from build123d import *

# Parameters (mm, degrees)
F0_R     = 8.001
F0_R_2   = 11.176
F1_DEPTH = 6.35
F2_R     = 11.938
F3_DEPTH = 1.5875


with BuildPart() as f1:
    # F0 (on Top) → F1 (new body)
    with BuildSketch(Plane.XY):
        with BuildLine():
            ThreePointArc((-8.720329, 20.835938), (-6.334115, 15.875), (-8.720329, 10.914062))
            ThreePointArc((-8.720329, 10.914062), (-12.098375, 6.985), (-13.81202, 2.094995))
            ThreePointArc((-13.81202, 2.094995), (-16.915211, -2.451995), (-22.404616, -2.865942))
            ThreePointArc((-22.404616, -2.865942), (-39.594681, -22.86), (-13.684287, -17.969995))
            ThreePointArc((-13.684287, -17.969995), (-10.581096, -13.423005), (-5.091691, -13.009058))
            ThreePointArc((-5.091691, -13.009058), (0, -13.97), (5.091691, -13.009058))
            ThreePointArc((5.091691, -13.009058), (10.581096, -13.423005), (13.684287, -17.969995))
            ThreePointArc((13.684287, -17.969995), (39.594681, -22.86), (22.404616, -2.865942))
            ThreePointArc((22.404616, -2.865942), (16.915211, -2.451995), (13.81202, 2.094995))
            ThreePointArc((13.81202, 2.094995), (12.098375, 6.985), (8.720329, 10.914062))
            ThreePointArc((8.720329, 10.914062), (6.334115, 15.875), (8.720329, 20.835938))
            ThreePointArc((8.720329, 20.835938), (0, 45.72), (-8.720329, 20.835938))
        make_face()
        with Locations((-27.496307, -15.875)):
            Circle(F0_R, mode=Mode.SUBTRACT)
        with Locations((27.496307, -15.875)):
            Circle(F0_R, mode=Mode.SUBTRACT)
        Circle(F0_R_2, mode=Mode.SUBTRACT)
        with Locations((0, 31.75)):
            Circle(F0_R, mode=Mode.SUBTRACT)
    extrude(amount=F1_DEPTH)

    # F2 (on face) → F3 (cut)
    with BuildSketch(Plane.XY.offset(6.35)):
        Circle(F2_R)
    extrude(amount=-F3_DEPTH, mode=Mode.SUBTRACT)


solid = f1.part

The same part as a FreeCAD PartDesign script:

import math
import FreeCAD as App
import Part
import Sketcher
Q = App.Units.Quantity

doc = App.newDocument("Part")
body = doc.addObject("PartDesign::Body", "Body")

# Sketch on XY plane
sketch1 = body.newObject("Sketcher::SketchObject", "Sketch")
sketch1.AttachmentSupport = (doc.getObject("XY_Plane"), [""])
sketch1.MapMode = "FlatFace"
sketch1.addGeometry([
    Part.ArcOfCircle(Part.Circle(App.Vector(-12.684116, 15.875, 0), App.Vector(0, 0, 1), 6.350001), math.radians(-51.375162), math.radians(51.375162)),  # 0
    Part.ArcOfCircle(Part.Circle(App.Vector(-0.000004, 0.000002, 0), App.Vector(0, 0, 1), 13.969996), math.radians(128.624824), math.radians(171.375173)),  # 1
    Part.ArcOfCircle(Part.Circle(App.Vector(-20.090211, 3.047267, 0), App.Vector(0, 0, 1), 6.350001), math.radians(-111.375163), math.radians(-8.624844)),  # 2
    Part.ArcOfCircle(Part.Circle(App.Vector(-27.496307, -15.875, 0), App.Vector(0, 0, 1), 13.97), math.radians(68.624833), math.radians(351.375166)),  # 3
    Part.ArcOfCircle(Part.Circle(App.Vector(-7.406096, -18.922267, 0), App.Vector(0, 0, 1), 6.350001), math.radians(68.624837), math.radians(171.375156)),  # 4
    Part.ArcOfCircle(Part.Circle(App.Vector(0, 0.000004, 0), App.Vector(0, 0, 1), 13.970004), math.radians(-111.375162), math.radians(-68.624838)),  # 5
    Part.ArcOfCircle(Part.Circle(App.Vector(7.406096, -18.922267, 0), App.Vector(0, 0, 1), 6.350001), math.radians(8.624844), math.radians(111.375163)),  # 6
    Part.ArcOfCircle(Part.Circle(App.Vector(27.496307, -15.875, 0), App.Vector(0, 0, 1), 13.97), math.radians(-171.375166), math.radians(111.375167)),  # 7
    Part.ArcOfCircle(Part.Circle(App.Vector(20.090211, 3.047267, 0), App.Vector(0, 0, 1), 6.350001), math.radians(-171.375156), math.radians(-68.624837)),  # 8
    Part.ArcOfCircle(Part.Circle(App.Vector(0.000004, 0.000002, 0), App.Vector(0, 0, 1), 13.969996), math.radians(8.624827), math.radians(51.375176)),  # 9
    Part.ArcOfCircle(Part.Circle(App.Vector(12.684116, 15.875, 0), App.Vector(0, 0, 1), 6.350001), math.radians(128.624838), math.radians(231.375162)),  # 10
    Part.ArcOfCircle(Part.Circle(App.Vector(0, 31.75, 0), App.Vector(0, 0, 1), 13.97), math.radians(-51.375167), math.radians(231.375167)),  # 11
    Part.Circle(App.Vector(-27.496307, -15.875, 0), App.Vector(0, 0, 1), 8.001),  # 12
    Part.Circle(App.Vector(0, 0, 0), App.Vector(0, 0, 1), 11.176),  # 13
    Part.Circle(App.Vector(27.496307, -15.875, 0), App.Vector(0, 0, 1), 8.001),  # 14
    Part.Circle(App.Vector(0, 31.75, 0), App.Vector(0, 0, 1), 8.001),  # 15
], False)
sketch1.addConstraint([
    Sketcher.Constraint("Tangent", 0, 1, 1, 1),
    Sketcher.Constraint("Tangent", 1, 2, 2, 2),
    Sketcher.Constraint("Tangent", 2, 1, 3, 1),
    Sketcher.Constraint("Tangent", 3, 2, 4, 2),
    Sketcher.Constraint("Tangent", 4, 1, 5, 1),
    Sketcher.Constraint("Tangent", 5, 2, 6, 2),
    Sketcher.Constraint("Tangent", 6, 1, 7, 1),
    Sketcher.Constraint("Tangent", 7, 2, 8, 2),
    Sketcher.Constraint("Tangent", 8, 1, 9, 1),
    Sketcher.Constraint("Tangent", 9, 2, 10, 2),
    Sketcher.Constraint("Tangent", 10, 1, 11, 1),
    Sketcher.Constraint("Tangent", 11, 2, 0, 2),
    Sketcher.Constraint("Coincident", 1, 3, -1, 1),
    Sketcher.Constraint("Coincident", 5, 3, -1, 1),
    Sketcher.Constraint("Coincident", 9, 3, -1, 1),
    Sketcher.Constraint("Coincident", 13, 3, -1, 1),
    Sketcher.Constraint("Coincident", 12, 3, 3, 3),
    Sketcher.Constraint("Coincident", 14, 3, 7, 3),
    Sketcher.Constraint("Coincident", 15, 3, 11, 3),
    Sketcher.Constraint("Equal", 0, 2),
    Sketcher.Constraint("Equal", 2, 4),
    Sketcher.Constraint("Equal", 4, 6),
    Sketcher.Constraint("Equal", 3, 7),
    Sketcher.Constraint("Equal", 6, 8),
    Sketcher.Constraint("Equal", 1, 9),
    Sketcher.Constraint("Equal", 8, 10),
    Sketcher.Constraint("Equal", 7, 11),
    Sketcher.Constraint("Equal", 12, 14),
    Sketcher.Constraint("Equal", 14, 15),
    Sketcher.Constraint("Symmetric", 3, 3, 7, 3, -2),
    Sketcher.Constraint("PointOnObject", 11, 3, -2),
    Sketcher.Constraint("Vertical", 9, 2, 10, 1),
    Sketcher.Constraint("Diameter", 12, Q("0.63 in")),
    Sketcher.Constraint("Diameter", 13, Q("0.88 in")),
    Sketcher.Constraint("Radius", 0, Q("0.25 in")),
    Sketcher.Constraint("Radius", 1, Q("0.5499998 in")),
    Sketcher.Constraint("Radius", 5, Q("0.5500001 in")),
    Sketcher.Constraint("DistanceY", -1, 1, 11, 3, Q("1.25 in")),
    Sketcher.Constraint("DistanceY", 3, 3, 0, 3, Q("1.25 in")),
    Sketcher.Constraint("DistanceX", 1, 3, 6, 3, Q("7.4061 mm")),
])
pad1 = body.newObject("PartDesign::Pad", "Pad")
pad1.Profile = sketch1
pad1.Length = Q("0.25 in")

# Sketch on XY plane
sketch2 = body.newObject("Sketcher::SketchObject", "Sketch001")
sketch2.AttachmentSupport = (doc.getObject("XY_Plane"), [""])
sketch2.MapMode = "FlatFace"
sketch2.AttachmentOffset = App.Placement(App.Vector(0, 0, 0.25 * 25.4), App.Rotation())
sketch2.addGeometry(Part.Circle(App.Vector(0, 0, 0), App.Vector(0, 0, 1), 11.938), False)
sketch2.addConstraint([
    Sketcher.Constraint("Coincident", 0, 3, -1, 1),
    Sketcher.Constraint("Diameter", 0, Q("0.94 in")),
])
pocket1 = body.newObject("PartDesign::Pocket", "Pocket")
pocket1.Profile = sketch2
pocket1.Length = Q("0.0625 in")

doc.recompute()
